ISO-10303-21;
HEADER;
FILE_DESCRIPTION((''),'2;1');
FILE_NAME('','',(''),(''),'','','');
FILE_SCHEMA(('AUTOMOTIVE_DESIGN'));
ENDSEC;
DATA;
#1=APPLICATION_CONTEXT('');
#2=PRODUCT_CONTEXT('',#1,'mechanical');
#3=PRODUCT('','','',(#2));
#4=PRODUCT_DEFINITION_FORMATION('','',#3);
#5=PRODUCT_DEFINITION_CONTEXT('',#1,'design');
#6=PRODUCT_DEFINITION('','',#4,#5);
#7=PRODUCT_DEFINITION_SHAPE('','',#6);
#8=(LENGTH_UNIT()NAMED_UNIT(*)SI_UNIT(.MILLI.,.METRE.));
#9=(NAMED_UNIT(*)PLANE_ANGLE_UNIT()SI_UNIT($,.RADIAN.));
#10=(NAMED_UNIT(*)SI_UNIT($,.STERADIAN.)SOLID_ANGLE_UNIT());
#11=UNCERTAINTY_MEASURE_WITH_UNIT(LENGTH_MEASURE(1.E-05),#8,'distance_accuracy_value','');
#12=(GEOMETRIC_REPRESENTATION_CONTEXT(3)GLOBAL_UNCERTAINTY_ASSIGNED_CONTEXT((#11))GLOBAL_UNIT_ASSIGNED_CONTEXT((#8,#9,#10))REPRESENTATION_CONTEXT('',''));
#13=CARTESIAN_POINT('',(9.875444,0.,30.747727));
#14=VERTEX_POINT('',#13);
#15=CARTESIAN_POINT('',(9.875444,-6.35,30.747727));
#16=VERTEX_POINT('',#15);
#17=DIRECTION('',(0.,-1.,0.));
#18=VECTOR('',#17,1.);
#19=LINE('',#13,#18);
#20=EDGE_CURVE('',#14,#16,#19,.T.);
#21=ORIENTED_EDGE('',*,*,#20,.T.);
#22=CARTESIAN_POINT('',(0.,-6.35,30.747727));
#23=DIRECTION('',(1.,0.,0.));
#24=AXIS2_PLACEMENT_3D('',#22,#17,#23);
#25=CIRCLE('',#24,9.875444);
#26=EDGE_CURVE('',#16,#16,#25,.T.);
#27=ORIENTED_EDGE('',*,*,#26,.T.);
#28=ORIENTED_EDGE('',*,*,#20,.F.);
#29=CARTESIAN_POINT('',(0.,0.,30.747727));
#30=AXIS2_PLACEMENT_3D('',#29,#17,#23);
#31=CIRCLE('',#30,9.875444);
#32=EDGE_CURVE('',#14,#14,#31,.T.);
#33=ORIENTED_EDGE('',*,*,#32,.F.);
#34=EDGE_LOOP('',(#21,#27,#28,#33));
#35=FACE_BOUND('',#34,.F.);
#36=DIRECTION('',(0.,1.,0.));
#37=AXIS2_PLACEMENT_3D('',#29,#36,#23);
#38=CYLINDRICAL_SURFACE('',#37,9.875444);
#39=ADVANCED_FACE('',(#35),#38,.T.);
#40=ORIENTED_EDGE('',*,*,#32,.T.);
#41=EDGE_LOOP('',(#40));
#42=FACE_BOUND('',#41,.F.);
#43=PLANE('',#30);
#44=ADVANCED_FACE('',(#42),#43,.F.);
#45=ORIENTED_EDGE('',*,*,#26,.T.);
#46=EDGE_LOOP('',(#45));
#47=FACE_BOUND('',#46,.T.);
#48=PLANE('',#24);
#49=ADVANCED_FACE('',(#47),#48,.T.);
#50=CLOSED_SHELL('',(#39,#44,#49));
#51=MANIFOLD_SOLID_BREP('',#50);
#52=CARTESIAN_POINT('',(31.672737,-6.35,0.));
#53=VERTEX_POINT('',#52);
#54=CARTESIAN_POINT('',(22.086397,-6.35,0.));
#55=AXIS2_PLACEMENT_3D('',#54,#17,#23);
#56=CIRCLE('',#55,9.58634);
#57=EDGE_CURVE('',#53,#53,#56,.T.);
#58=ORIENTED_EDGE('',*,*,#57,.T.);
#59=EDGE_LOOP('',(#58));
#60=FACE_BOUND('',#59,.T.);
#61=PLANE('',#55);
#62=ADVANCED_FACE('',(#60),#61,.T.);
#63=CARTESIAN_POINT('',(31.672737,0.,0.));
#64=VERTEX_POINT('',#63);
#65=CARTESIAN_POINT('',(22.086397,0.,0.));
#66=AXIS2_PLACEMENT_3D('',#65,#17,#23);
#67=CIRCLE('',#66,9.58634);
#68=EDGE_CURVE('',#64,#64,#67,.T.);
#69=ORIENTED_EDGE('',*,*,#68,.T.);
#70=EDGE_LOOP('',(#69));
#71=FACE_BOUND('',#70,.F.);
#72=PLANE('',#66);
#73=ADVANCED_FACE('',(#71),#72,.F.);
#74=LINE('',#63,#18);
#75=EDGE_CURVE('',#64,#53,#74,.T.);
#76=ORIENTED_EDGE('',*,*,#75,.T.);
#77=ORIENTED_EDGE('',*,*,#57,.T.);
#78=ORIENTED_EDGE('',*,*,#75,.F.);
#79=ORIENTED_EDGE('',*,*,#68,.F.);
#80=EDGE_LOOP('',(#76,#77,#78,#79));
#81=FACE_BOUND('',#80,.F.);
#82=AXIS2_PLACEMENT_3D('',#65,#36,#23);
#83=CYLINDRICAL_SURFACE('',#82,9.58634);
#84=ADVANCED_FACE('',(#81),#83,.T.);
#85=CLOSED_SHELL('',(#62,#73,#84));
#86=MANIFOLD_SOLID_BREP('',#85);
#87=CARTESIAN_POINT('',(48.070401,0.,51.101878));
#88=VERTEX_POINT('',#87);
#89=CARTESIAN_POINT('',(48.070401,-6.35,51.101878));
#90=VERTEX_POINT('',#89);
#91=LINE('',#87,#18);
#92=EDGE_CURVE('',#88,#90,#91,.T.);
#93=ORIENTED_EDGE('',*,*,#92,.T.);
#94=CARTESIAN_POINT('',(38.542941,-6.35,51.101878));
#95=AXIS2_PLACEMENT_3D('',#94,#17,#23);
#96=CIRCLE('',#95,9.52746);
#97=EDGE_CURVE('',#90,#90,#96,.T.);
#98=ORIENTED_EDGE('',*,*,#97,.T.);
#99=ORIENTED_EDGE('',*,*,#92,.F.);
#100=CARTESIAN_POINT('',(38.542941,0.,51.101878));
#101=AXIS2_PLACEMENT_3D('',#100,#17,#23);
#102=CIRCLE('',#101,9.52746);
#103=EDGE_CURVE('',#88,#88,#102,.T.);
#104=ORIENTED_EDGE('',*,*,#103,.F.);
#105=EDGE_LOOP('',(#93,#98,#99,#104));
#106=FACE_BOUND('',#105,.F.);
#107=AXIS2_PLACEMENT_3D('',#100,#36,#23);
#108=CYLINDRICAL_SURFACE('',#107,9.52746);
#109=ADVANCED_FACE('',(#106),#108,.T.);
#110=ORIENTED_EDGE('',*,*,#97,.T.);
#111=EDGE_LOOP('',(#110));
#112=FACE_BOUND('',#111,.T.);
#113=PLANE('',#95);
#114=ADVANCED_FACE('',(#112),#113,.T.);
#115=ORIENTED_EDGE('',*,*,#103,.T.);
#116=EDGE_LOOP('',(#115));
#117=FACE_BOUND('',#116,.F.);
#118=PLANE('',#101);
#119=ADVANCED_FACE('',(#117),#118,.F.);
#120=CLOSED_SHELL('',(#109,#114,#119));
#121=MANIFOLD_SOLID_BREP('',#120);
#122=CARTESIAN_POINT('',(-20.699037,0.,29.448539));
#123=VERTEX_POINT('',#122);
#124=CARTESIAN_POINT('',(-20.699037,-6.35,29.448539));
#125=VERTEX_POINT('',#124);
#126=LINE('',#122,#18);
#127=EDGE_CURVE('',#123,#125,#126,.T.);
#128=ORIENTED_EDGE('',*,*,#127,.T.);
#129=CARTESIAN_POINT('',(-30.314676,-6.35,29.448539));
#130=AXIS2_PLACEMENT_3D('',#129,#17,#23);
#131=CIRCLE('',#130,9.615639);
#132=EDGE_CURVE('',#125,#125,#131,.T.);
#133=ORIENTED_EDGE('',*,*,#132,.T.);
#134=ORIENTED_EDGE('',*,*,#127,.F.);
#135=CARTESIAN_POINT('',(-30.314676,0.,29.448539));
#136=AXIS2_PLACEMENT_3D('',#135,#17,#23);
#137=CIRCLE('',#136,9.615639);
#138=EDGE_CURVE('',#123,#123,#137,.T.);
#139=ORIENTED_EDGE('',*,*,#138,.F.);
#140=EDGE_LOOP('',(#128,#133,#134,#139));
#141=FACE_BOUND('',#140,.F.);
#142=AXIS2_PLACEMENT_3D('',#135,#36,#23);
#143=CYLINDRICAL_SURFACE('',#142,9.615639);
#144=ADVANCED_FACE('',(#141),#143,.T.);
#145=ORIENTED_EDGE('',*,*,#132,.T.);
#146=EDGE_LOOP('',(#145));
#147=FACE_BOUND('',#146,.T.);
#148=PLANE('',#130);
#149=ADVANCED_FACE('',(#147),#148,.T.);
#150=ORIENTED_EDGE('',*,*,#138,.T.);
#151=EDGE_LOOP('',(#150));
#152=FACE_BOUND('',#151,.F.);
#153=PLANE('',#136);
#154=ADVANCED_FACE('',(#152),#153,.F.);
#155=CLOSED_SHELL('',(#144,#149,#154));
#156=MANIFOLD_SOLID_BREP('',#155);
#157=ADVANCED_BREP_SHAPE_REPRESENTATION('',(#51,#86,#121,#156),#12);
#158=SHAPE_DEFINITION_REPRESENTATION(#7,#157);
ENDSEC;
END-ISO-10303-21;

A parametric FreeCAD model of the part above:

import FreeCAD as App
import Part
import Sketcher

V = App.Vector
Q = App.Units.Quantity

doc = App.newDocument("Part")
body = doc.addObject("PartDesign::Body", "Body")
body.AllowCompound = True

sketch1 = doc.addObject("Sketcher::SketchObject", "Sketch")
body.addObject(sketch1)
sketch1.AttachmentSupport = (doc.XZ_Plane, [""])
sketch1.MapMode = "FlatFace"
sketch1.addGeometry([
    Part.Circle(V(39, 51, 0), V(0, 0, 1), 10),
    Part.Circle(V(22, 0, 0), V(0, 0, 1), 10),
    Part.Circle(V(-30, 29, 0), V(0, 0, 1), 10),
    Part.Circle(V(0, 31, 0), V(0, 0, 1), 10),
], False)
sketch1.addConstraint([
    Sketcher.Constraint("PointOnObject", 1, 3, -1),
    Sketcher.Constraint("PointOnObject", 3, 3, -2),
    Sketcher.Constraint("Diameter", 0, 19.05492),
    Sketcher.Constraint("Diameter", 1, 19.17268),
    Sketcher.Constraint("Diameter", 3, 19.750888),
    Sketcher.Constraint("Diameter", 2, 19.231278),
    Sketcher.Constraint("DistanceX", -1, 1, 0, 3, 38.542941),
    Sketcher.Constraint("DistanceY", -1, 1, 2, 3, 29.448539),
    Sketcher.Constraint("DistanceY", 2, 3, 0, 3, 21.653339),
    Sketcher.Constraint("DistanceY", 2, 3, 3, 3, 1.299188),
    Sketcher.Constraint("DistanceX", -1, 1, 1, 3, 22.086397),
    Sketcher.Constraint("DistanceX", 2, 3, -1, 1, 30.314676),
])
pad1 = doc.addObject("PartDesign::Pad", "Pad")
body.addObject(pad1)
pad1.Profile = sketch1
pad1.Length = Q("0.25 in")

doc.recompute()
